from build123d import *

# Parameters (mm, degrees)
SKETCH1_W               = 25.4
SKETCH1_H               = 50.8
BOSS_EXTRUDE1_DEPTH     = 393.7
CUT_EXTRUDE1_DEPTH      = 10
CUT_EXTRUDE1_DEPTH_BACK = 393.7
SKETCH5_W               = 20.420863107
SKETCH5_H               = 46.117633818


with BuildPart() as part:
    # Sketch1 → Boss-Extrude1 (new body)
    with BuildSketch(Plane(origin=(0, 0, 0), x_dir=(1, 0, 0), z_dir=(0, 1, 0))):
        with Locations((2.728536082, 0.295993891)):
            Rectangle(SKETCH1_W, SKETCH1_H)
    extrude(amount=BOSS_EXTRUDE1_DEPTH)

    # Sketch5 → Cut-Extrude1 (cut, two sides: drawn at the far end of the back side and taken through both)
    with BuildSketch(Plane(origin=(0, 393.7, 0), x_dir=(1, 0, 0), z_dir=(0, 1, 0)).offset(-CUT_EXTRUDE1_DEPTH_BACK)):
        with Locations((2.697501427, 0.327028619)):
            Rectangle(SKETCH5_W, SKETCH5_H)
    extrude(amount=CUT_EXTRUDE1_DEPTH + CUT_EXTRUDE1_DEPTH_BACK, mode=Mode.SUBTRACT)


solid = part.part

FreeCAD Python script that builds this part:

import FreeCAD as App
import Part
import Sketcher
Q = App.Units.Quantity

doc = App.newDocument("Part")
body = doc.addObject("PartDesign::Body", "Body")

sketch1 = doc.addObject("Sketcher::SketchObject", "Sketch")
body.addObject(sketch1)
sketch1.AttachmentSupport = (doc.XZ_Plane, [""])
sketch1.MapMode = "FlatFace"
sketch1.addGeometry(Part.LineSegment(App.Vector(-9.971464, -25.695994, 0), App.Vector(-9.971464, 25.104006, 0)), False)
sketch1.addGeometry(Part.LineSegment(App.Vector(-9.971464, 25.104006, 0), App.Vector(15.428536, 25.104006, 0)), False)
sketch1.addGeometry(Part.LineSegment(App.Vector(15.428536, 25.104006, 0), App.Vector(15.428536, -25.695994, 0)), False)
sketch1.addGeometry(Part.LineSegment(App.Vector(15.428536, -25.695994, 0), App.Vector(-9.971464, -25.695994, 0)), False)
sketch1.addConstraint(Sketcher.Constraint("Coincident", 0, 2, 1, 1))
sketch1.addConstraint(Sketcher.Constraint("Coincident", 1, 2, 2, 1))
sketch1.addConstraint(Sketcher.Constraint("Coincident", 2, 2, 3, 1))
sketch1.addConstraint(Sketcher.Constraint("Coincident", 3, 2, 0, 1))
sketch1.addConstraint(Sketcher.Constraint("Vertical", 0))
sketch1.addConstraint(Sketcher.Constraint("Horizontal", 1))
sketch1.addConstraint(Sketcher.Constraint("Vertical", 2))
sketch1.addConstraint(Sketcher.Constraint("Horizontal", 3))
sketch1.addConstraint(Sketcher.Constraint("DistanceX", 1, 1, 1, 2, Q("1 in")))
sketch1.addConstraint(Sketcher.Constraint("DistanceY", 0, 1, 0, 2, Q("2 in")))
sketch1.addConstraint(Sketcher.Constraint("DistanceX", 0, 2, -1, 1, 9.971464))
sketch1.addConstraint(Sketcher.Constraint("DistanceY", -1, 1, 0, 2, 25.104006))
pad1 = doc.addObject("PartDesign::Pad", "Pad")
body.addObject(pad1)
pad1.Profile = sketch1
pad1.Length = Q("15.5 in")
pad1.Reversed = True

sketch2 = doc.addObject("Sketcher::SketchObject", "Sketch001")
body.addObject(sketch2)
sketch2.AttachmentSupport = (doc.XZ_Plane, [""])
sketch2.MapMode = "FlatFace"
sketch2.AttachmentOffset = App.Placement(App.Vector(0, 0, -15.5 * 25.4), App.Rotation())
sketch2.addGeometry(Part.LineSegment(App.Vector(-7.51293, -23.385846, 0), App.Vector(-7.51293, 22.731788, 0)), False)
sketch2.addGeometry(Part.LineSegment(App.Vector(-7.51293, 22.731788, 0), App.Vector(12.907933, 22.731788, 0)), False)
sketch2.addGeometry(Part.LineSegment(App.Vector(12.907933, 22.731788, 0), App.Vector(12.907933, -23.385846, 0)), False)
sketch2.addGeometry(Part.LineSegment(App.Vector(12.907933, -23.385846, 0), App.Vector(-7.51293, -23.385846, 0)), False)
sketch2.addConstraint(Sketcher.Constraint("Coincident", 0, 2, 1, 1))
sketch2.addConstraint(Sketcher.Constraint("Coincident", 1, 2, 2, 1))
sketch2.addConstraint(Sketcher.Constraint("Coincident", 2, 2, 3, 1))
sketch2.addConstraint(Sketcher.Constraint("Coincident", 3, 2, 0, 1))
sketch2.addConstraint(Sketcher.Constraint("Vertical", 0))
sketch2.addConstraint(Sketcher.Constraint("Horizontal", 1))
sketch2.addConstraint(Sketcher.Constraint("Vertical", 2))
sketch2.addConstraint(Sketcher.Constraint("Horizontal", 3))
sketch2.addConstraint(Sketcher.Constraint("DistanceX", 1, 1, 1, 2, 20.420863))
sketch2.addConstraint(Sketcher.Constraint("DistanceY", 0, 1, 0, 2, 46.117634))
sketch2.addConstraint(Sketcher.Constraint("DistanceX", 0, 2, -1, 1, 7.51293))
sketch2.addConstraint(Sketcher.Constraint("DistanceY", -1, 1, 0, 2, 22.731788))
pocket1 = doc.addObject("PartDesign::Pocket", "Pocket")
body.addObject(pocket1)
pocket1.Profile = sketch2
pocket1.Type = "ThroughAll"
pocket1.Midplane = True

doc.recompute()
